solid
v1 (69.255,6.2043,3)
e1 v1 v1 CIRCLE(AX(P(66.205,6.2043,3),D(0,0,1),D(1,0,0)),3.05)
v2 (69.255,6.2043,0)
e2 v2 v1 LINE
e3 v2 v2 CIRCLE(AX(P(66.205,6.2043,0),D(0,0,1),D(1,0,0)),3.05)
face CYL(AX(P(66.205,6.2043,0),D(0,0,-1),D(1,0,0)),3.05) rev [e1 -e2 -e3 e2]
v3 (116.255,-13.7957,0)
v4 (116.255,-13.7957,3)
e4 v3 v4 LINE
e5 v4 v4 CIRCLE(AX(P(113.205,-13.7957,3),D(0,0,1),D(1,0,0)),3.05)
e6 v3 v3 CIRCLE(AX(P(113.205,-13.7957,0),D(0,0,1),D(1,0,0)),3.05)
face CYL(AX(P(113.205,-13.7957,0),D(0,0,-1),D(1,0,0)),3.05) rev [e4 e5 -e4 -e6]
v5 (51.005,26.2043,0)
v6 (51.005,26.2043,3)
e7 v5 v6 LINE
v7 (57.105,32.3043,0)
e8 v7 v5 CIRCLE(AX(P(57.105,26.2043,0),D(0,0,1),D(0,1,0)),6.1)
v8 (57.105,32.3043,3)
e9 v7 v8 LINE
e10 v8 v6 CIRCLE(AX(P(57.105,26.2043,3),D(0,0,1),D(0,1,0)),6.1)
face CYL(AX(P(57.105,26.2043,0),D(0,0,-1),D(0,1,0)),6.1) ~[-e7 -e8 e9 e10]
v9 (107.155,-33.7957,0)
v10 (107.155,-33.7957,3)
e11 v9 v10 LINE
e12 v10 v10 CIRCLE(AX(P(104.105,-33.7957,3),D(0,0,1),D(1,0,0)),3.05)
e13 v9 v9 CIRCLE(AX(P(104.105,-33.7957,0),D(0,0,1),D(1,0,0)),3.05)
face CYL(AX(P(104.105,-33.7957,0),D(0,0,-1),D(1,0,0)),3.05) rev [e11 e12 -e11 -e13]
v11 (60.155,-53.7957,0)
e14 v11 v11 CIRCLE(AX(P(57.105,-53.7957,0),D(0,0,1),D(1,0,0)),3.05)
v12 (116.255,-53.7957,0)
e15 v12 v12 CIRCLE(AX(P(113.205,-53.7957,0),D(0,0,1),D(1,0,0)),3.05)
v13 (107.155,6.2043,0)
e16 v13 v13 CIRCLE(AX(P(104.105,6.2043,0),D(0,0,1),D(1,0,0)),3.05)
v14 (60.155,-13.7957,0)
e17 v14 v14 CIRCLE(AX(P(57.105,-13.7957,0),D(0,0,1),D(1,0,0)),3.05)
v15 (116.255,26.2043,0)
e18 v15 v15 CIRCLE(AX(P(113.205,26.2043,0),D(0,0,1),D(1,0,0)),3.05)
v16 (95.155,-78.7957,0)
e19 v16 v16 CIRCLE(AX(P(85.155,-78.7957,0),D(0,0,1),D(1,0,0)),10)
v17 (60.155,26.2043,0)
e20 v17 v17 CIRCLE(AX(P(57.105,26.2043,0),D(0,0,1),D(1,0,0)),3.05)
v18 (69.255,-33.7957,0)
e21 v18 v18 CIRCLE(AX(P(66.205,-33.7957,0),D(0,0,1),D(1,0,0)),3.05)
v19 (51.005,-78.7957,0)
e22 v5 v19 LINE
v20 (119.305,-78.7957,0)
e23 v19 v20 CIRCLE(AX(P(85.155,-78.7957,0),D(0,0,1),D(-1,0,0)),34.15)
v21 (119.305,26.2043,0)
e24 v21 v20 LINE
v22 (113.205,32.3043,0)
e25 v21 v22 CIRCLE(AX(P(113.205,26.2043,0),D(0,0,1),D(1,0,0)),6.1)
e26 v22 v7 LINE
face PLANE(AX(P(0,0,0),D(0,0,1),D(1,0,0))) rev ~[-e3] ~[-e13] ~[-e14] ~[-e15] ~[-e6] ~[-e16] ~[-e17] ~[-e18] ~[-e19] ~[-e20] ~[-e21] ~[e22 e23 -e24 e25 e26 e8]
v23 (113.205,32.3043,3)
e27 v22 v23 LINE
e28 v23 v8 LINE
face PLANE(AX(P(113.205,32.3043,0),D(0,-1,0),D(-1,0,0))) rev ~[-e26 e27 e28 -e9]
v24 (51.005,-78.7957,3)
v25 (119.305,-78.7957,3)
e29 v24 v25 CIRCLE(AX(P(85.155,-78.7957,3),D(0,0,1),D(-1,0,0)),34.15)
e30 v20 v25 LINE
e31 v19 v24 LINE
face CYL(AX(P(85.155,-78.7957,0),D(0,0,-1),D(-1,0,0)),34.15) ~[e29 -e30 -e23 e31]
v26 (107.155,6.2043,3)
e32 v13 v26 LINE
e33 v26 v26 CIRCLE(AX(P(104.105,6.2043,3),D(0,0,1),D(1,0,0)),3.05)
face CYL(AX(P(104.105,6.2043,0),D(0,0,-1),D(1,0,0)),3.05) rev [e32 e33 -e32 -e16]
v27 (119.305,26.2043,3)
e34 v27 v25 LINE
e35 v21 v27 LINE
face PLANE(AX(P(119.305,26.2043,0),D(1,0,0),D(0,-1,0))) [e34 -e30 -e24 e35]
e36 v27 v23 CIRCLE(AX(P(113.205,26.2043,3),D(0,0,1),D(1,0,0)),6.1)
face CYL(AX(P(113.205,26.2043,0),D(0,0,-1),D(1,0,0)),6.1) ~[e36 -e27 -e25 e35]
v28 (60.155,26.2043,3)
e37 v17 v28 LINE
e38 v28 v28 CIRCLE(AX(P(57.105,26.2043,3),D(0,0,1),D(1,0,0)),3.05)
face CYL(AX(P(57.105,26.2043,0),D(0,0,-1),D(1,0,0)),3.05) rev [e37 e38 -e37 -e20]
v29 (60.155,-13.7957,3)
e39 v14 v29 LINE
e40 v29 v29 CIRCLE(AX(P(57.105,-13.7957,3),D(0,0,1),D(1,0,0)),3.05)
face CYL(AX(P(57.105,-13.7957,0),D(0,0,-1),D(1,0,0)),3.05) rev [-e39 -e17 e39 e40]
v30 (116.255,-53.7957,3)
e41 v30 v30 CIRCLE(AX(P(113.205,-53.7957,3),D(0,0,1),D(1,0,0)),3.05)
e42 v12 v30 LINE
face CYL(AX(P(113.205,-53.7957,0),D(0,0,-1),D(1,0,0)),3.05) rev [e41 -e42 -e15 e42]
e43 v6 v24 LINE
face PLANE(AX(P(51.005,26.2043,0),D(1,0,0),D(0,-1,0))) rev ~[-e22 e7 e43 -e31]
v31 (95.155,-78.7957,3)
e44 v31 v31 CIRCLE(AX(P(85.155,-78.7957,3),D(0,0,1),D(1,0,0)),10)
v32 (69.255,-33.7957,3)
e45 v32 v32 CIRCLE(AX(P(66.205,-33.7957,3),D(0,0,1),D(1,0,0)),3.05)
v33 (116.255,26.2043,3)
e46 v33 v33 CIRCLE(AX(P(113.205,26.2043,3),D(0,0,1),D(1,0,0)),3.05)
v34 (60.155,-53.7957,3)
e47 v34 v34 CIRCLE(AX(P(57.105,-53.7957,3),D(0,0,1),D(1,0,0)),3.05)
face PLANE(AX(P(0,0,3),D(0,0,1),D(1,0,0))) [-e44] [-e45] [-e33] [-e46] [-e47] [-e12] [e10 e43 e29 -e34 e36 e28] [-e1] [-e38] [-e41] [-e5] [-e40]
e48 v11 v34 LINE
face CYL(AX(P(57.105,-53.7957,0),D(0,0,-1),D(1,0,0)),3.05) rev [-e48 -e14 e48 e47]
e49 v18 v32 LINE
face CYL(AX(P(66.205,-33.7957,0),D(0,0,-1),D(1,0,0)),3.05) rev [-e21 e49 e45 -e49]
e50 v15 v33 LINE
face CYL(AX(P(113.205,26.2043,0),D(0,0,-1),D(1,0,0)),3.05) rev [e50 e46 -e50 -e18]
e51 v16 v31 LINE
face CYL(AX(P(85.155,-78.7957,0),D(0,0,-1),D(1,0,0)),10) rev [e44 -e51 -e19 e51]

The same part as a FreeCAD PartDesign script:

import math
import FreeCAD as App
import Part
import Sketcher
from FreeCAD import Vector

doc = App.newDocument("Part")
body = doc.addObject("PartDesign::Body", "Body")

# Sketch on XY plane
sketch1 = body.newObject("Sketcher::SketchObject", "Sketch")
sketch1.AttachmentSupport = (doc.getObject("XY_Plane"), [""])
sketch1.MapMode = "FlatFace"
sketch1.addGeometry([
    Part.LineSegment(Vector(119.305, -78.7957, 0), Vector(119.305, 26.2043, 0)),  # 0
    Part.ArcOfCircle(Part.Circle(Vector(113.205, 26.2043, 0), Vector(0, 0, 1), 6.1), math.radians(0), math.radians(90)),  # 1
    Part.LineSegment(Vector(113.205, 32.3043, 0), Vector(57.105, 32.3043, 0)),  # 2
    Part.ArcOfCircle(Part.Circle(Vector(57.105, 26.2043, 0), Vector(0, 0, 1), 6.1), math.radians(90), math.radians(180)),  # 3
    Part.LineSegment(Vector(51.005, 26.2043, 0), Vector(51.005, -78.7957, 0)),  # 4
    Part.ArcOfCircle(Part.Circle(Vector(85.155, -78.7957, 0), Vector(0, 0, 1), 34.15), math.radians(180), math.radians(360)),  # 5
    Part.Circle(Vector(57.105, -53.7957, 0), Vector(0, 0, 1), 3.05),  # 6
    Part.Circle(Vector(85.155, -78.7957, 0), Vector(0, 0, 1), 10),  # 7
    Part.Circle(Vector(113.205, -53.7957, 0), Vector(0, 0, 1), 3.05),  # 8
    Part.Circle(Vector(66.205, -33.7957, 0), Vector(0, 0, 1), 3.05),  # 9
    Part.Circle(Vector(57.105, -13.7957, 0), Vector(0, 0, 1), 3.05),  # 10
    Part.Circle(Vector(66.205, 6.2043, 0), Vector(0, 0, 1), 3.05),  # 11
    Part.Circle(Vector(57.105, 26.2043, 0), Vector(0, 0, 1), 3.05),  # 12
    Part.Circle(Vector(104.105, -33.7957, 0), Vector(0, 0, 1), 3.05),  # 13
    Part.Circle(Vector(113.205, -13.7957, 0), Vector(0, 0, 1), 3.05),  # 14
    Part.Circle(Vector(104.105, 6.2043, 0), Vector(0, 0, 1), 3.05),  # 15
    Part.Circle(Vector(113.205, 26.2043, 0), Vector(0, 0, 1), 3.05),  # 16
], False)
sketch1.addConstraint([
    Sketcher.Constraint("Tangent", 0, 2, 1, 1),
    Sketcher.Constraint("Tangent", 1, 2, 2, 1),
    Sketcher.Constraint("Tangent", 2, 2, 3, 1),
    Sketcher.Constraint("Tangent", 3, 2, 4, 1),
    Sketcher.Constraint("Tangent", 4, 2, 5, 1),
    Sketcher.Constraint("Tangent", 5, 2, 0, 1),
    Sketcher.Constraint("Vertical", 0),
    Sketcher.Constraint("Horizontal", 2),
    Sketcher.Constraint("Vertical", 4),
    Sketcher.Constraint("Coincident", 7, 3, 5, 3),
    Sketcher.Constraint("Coincident", 12, 3, 3, 3),
    Sketcher.Constraint("Coincident", 16, 3, 1, 3),
    Sketcher.Constraint("Equal", 1, 3),
    Sketcher.Constraint("Equal", 6, 8),
    Sketcher.Constraint("Equal", 8, 9),
    Sketcher.Constraint("Equal", 9, 10),
    Sketcher.Constraint("Equal", 10, 11),
    Sketcher.Constraint("Equal", 11, 12),
    Sketcher.Constraint("Equal", 12, 13),
    Sketcher.Constraint("Equal", 13, 14),
    Sketcher.Constraint("Equal", 14, 15),
    Sketcher.Constraint("Equal", 15, 16),
    Sketcher.Constraint("Horizontal", 6, 3, 8, 3),
    Sketcher.Constraint("Horizontal", 9, 3, 13, 3),
    Sketcher.Constraint("Horizontal", 10, 3, 14, 3),
    Sketcher.Constraint("Horizontal", 11, 3, 15, 3),
    Sketcher.Constraint("Vertical", 3, 3, 6, 3),
    Sketcher.Constraint("Vertical", 1, 3, 8, 3),
    Sketcher.Constraint("Vertical", 6, 3, 10, 3),
    Sketcher.Constraint("Vertical", 9, 3, 11, 3),
    Sketcher.Constraint("Vertical", 8, 3, 14, 3),
    Sketcher.Constraint("Vertical", 13, 3, 15, 3),
    Sketcher.Constraint("Diameter", 7, 20.0),
    Sketcher.Constraint("Diameter", 6, 6.1),
    Sketcher.Constraint("Radius", 1, 6.1),
    Sketcher.Constraint("DistanceX", 2, 2, 2, 1, 56.1),
    Sketcher.Constraint("DistanceY", 6, 3, 9, 3, 20.0),
    Sketcher.Constraint("DistanceY", 9, 3, 10, 3, 20.0),
    Sketcher.Constraint("DistanceY", 10, 3, 3, 3, 40.0),
    Sketcher.Constraint("DistanceY", 11, 3, 3, 3, 20.0),
    Sketcher.Constraint("DistanceX", 9, 3, 13, 3, 37.9),
    Sketcher.Constraint("DistanceY", 0, 1, 0, 2, 105.0),
    Sketcher.Constraint("DistanceX", 9, 3, 8, 3, 47.0),
    Sketcher.Constraint("DistanceX", -1, 1, 1, 3, 113.205),
    Sketcher.Constraint("DistanceY", -1, 1, 1, 3, 26.2043),
])
pad1 = body.newObject("PartDesign::Pad", "Pad")
pad1.Profile = sketch1
pad1.Length = 3

doc.recompute()
